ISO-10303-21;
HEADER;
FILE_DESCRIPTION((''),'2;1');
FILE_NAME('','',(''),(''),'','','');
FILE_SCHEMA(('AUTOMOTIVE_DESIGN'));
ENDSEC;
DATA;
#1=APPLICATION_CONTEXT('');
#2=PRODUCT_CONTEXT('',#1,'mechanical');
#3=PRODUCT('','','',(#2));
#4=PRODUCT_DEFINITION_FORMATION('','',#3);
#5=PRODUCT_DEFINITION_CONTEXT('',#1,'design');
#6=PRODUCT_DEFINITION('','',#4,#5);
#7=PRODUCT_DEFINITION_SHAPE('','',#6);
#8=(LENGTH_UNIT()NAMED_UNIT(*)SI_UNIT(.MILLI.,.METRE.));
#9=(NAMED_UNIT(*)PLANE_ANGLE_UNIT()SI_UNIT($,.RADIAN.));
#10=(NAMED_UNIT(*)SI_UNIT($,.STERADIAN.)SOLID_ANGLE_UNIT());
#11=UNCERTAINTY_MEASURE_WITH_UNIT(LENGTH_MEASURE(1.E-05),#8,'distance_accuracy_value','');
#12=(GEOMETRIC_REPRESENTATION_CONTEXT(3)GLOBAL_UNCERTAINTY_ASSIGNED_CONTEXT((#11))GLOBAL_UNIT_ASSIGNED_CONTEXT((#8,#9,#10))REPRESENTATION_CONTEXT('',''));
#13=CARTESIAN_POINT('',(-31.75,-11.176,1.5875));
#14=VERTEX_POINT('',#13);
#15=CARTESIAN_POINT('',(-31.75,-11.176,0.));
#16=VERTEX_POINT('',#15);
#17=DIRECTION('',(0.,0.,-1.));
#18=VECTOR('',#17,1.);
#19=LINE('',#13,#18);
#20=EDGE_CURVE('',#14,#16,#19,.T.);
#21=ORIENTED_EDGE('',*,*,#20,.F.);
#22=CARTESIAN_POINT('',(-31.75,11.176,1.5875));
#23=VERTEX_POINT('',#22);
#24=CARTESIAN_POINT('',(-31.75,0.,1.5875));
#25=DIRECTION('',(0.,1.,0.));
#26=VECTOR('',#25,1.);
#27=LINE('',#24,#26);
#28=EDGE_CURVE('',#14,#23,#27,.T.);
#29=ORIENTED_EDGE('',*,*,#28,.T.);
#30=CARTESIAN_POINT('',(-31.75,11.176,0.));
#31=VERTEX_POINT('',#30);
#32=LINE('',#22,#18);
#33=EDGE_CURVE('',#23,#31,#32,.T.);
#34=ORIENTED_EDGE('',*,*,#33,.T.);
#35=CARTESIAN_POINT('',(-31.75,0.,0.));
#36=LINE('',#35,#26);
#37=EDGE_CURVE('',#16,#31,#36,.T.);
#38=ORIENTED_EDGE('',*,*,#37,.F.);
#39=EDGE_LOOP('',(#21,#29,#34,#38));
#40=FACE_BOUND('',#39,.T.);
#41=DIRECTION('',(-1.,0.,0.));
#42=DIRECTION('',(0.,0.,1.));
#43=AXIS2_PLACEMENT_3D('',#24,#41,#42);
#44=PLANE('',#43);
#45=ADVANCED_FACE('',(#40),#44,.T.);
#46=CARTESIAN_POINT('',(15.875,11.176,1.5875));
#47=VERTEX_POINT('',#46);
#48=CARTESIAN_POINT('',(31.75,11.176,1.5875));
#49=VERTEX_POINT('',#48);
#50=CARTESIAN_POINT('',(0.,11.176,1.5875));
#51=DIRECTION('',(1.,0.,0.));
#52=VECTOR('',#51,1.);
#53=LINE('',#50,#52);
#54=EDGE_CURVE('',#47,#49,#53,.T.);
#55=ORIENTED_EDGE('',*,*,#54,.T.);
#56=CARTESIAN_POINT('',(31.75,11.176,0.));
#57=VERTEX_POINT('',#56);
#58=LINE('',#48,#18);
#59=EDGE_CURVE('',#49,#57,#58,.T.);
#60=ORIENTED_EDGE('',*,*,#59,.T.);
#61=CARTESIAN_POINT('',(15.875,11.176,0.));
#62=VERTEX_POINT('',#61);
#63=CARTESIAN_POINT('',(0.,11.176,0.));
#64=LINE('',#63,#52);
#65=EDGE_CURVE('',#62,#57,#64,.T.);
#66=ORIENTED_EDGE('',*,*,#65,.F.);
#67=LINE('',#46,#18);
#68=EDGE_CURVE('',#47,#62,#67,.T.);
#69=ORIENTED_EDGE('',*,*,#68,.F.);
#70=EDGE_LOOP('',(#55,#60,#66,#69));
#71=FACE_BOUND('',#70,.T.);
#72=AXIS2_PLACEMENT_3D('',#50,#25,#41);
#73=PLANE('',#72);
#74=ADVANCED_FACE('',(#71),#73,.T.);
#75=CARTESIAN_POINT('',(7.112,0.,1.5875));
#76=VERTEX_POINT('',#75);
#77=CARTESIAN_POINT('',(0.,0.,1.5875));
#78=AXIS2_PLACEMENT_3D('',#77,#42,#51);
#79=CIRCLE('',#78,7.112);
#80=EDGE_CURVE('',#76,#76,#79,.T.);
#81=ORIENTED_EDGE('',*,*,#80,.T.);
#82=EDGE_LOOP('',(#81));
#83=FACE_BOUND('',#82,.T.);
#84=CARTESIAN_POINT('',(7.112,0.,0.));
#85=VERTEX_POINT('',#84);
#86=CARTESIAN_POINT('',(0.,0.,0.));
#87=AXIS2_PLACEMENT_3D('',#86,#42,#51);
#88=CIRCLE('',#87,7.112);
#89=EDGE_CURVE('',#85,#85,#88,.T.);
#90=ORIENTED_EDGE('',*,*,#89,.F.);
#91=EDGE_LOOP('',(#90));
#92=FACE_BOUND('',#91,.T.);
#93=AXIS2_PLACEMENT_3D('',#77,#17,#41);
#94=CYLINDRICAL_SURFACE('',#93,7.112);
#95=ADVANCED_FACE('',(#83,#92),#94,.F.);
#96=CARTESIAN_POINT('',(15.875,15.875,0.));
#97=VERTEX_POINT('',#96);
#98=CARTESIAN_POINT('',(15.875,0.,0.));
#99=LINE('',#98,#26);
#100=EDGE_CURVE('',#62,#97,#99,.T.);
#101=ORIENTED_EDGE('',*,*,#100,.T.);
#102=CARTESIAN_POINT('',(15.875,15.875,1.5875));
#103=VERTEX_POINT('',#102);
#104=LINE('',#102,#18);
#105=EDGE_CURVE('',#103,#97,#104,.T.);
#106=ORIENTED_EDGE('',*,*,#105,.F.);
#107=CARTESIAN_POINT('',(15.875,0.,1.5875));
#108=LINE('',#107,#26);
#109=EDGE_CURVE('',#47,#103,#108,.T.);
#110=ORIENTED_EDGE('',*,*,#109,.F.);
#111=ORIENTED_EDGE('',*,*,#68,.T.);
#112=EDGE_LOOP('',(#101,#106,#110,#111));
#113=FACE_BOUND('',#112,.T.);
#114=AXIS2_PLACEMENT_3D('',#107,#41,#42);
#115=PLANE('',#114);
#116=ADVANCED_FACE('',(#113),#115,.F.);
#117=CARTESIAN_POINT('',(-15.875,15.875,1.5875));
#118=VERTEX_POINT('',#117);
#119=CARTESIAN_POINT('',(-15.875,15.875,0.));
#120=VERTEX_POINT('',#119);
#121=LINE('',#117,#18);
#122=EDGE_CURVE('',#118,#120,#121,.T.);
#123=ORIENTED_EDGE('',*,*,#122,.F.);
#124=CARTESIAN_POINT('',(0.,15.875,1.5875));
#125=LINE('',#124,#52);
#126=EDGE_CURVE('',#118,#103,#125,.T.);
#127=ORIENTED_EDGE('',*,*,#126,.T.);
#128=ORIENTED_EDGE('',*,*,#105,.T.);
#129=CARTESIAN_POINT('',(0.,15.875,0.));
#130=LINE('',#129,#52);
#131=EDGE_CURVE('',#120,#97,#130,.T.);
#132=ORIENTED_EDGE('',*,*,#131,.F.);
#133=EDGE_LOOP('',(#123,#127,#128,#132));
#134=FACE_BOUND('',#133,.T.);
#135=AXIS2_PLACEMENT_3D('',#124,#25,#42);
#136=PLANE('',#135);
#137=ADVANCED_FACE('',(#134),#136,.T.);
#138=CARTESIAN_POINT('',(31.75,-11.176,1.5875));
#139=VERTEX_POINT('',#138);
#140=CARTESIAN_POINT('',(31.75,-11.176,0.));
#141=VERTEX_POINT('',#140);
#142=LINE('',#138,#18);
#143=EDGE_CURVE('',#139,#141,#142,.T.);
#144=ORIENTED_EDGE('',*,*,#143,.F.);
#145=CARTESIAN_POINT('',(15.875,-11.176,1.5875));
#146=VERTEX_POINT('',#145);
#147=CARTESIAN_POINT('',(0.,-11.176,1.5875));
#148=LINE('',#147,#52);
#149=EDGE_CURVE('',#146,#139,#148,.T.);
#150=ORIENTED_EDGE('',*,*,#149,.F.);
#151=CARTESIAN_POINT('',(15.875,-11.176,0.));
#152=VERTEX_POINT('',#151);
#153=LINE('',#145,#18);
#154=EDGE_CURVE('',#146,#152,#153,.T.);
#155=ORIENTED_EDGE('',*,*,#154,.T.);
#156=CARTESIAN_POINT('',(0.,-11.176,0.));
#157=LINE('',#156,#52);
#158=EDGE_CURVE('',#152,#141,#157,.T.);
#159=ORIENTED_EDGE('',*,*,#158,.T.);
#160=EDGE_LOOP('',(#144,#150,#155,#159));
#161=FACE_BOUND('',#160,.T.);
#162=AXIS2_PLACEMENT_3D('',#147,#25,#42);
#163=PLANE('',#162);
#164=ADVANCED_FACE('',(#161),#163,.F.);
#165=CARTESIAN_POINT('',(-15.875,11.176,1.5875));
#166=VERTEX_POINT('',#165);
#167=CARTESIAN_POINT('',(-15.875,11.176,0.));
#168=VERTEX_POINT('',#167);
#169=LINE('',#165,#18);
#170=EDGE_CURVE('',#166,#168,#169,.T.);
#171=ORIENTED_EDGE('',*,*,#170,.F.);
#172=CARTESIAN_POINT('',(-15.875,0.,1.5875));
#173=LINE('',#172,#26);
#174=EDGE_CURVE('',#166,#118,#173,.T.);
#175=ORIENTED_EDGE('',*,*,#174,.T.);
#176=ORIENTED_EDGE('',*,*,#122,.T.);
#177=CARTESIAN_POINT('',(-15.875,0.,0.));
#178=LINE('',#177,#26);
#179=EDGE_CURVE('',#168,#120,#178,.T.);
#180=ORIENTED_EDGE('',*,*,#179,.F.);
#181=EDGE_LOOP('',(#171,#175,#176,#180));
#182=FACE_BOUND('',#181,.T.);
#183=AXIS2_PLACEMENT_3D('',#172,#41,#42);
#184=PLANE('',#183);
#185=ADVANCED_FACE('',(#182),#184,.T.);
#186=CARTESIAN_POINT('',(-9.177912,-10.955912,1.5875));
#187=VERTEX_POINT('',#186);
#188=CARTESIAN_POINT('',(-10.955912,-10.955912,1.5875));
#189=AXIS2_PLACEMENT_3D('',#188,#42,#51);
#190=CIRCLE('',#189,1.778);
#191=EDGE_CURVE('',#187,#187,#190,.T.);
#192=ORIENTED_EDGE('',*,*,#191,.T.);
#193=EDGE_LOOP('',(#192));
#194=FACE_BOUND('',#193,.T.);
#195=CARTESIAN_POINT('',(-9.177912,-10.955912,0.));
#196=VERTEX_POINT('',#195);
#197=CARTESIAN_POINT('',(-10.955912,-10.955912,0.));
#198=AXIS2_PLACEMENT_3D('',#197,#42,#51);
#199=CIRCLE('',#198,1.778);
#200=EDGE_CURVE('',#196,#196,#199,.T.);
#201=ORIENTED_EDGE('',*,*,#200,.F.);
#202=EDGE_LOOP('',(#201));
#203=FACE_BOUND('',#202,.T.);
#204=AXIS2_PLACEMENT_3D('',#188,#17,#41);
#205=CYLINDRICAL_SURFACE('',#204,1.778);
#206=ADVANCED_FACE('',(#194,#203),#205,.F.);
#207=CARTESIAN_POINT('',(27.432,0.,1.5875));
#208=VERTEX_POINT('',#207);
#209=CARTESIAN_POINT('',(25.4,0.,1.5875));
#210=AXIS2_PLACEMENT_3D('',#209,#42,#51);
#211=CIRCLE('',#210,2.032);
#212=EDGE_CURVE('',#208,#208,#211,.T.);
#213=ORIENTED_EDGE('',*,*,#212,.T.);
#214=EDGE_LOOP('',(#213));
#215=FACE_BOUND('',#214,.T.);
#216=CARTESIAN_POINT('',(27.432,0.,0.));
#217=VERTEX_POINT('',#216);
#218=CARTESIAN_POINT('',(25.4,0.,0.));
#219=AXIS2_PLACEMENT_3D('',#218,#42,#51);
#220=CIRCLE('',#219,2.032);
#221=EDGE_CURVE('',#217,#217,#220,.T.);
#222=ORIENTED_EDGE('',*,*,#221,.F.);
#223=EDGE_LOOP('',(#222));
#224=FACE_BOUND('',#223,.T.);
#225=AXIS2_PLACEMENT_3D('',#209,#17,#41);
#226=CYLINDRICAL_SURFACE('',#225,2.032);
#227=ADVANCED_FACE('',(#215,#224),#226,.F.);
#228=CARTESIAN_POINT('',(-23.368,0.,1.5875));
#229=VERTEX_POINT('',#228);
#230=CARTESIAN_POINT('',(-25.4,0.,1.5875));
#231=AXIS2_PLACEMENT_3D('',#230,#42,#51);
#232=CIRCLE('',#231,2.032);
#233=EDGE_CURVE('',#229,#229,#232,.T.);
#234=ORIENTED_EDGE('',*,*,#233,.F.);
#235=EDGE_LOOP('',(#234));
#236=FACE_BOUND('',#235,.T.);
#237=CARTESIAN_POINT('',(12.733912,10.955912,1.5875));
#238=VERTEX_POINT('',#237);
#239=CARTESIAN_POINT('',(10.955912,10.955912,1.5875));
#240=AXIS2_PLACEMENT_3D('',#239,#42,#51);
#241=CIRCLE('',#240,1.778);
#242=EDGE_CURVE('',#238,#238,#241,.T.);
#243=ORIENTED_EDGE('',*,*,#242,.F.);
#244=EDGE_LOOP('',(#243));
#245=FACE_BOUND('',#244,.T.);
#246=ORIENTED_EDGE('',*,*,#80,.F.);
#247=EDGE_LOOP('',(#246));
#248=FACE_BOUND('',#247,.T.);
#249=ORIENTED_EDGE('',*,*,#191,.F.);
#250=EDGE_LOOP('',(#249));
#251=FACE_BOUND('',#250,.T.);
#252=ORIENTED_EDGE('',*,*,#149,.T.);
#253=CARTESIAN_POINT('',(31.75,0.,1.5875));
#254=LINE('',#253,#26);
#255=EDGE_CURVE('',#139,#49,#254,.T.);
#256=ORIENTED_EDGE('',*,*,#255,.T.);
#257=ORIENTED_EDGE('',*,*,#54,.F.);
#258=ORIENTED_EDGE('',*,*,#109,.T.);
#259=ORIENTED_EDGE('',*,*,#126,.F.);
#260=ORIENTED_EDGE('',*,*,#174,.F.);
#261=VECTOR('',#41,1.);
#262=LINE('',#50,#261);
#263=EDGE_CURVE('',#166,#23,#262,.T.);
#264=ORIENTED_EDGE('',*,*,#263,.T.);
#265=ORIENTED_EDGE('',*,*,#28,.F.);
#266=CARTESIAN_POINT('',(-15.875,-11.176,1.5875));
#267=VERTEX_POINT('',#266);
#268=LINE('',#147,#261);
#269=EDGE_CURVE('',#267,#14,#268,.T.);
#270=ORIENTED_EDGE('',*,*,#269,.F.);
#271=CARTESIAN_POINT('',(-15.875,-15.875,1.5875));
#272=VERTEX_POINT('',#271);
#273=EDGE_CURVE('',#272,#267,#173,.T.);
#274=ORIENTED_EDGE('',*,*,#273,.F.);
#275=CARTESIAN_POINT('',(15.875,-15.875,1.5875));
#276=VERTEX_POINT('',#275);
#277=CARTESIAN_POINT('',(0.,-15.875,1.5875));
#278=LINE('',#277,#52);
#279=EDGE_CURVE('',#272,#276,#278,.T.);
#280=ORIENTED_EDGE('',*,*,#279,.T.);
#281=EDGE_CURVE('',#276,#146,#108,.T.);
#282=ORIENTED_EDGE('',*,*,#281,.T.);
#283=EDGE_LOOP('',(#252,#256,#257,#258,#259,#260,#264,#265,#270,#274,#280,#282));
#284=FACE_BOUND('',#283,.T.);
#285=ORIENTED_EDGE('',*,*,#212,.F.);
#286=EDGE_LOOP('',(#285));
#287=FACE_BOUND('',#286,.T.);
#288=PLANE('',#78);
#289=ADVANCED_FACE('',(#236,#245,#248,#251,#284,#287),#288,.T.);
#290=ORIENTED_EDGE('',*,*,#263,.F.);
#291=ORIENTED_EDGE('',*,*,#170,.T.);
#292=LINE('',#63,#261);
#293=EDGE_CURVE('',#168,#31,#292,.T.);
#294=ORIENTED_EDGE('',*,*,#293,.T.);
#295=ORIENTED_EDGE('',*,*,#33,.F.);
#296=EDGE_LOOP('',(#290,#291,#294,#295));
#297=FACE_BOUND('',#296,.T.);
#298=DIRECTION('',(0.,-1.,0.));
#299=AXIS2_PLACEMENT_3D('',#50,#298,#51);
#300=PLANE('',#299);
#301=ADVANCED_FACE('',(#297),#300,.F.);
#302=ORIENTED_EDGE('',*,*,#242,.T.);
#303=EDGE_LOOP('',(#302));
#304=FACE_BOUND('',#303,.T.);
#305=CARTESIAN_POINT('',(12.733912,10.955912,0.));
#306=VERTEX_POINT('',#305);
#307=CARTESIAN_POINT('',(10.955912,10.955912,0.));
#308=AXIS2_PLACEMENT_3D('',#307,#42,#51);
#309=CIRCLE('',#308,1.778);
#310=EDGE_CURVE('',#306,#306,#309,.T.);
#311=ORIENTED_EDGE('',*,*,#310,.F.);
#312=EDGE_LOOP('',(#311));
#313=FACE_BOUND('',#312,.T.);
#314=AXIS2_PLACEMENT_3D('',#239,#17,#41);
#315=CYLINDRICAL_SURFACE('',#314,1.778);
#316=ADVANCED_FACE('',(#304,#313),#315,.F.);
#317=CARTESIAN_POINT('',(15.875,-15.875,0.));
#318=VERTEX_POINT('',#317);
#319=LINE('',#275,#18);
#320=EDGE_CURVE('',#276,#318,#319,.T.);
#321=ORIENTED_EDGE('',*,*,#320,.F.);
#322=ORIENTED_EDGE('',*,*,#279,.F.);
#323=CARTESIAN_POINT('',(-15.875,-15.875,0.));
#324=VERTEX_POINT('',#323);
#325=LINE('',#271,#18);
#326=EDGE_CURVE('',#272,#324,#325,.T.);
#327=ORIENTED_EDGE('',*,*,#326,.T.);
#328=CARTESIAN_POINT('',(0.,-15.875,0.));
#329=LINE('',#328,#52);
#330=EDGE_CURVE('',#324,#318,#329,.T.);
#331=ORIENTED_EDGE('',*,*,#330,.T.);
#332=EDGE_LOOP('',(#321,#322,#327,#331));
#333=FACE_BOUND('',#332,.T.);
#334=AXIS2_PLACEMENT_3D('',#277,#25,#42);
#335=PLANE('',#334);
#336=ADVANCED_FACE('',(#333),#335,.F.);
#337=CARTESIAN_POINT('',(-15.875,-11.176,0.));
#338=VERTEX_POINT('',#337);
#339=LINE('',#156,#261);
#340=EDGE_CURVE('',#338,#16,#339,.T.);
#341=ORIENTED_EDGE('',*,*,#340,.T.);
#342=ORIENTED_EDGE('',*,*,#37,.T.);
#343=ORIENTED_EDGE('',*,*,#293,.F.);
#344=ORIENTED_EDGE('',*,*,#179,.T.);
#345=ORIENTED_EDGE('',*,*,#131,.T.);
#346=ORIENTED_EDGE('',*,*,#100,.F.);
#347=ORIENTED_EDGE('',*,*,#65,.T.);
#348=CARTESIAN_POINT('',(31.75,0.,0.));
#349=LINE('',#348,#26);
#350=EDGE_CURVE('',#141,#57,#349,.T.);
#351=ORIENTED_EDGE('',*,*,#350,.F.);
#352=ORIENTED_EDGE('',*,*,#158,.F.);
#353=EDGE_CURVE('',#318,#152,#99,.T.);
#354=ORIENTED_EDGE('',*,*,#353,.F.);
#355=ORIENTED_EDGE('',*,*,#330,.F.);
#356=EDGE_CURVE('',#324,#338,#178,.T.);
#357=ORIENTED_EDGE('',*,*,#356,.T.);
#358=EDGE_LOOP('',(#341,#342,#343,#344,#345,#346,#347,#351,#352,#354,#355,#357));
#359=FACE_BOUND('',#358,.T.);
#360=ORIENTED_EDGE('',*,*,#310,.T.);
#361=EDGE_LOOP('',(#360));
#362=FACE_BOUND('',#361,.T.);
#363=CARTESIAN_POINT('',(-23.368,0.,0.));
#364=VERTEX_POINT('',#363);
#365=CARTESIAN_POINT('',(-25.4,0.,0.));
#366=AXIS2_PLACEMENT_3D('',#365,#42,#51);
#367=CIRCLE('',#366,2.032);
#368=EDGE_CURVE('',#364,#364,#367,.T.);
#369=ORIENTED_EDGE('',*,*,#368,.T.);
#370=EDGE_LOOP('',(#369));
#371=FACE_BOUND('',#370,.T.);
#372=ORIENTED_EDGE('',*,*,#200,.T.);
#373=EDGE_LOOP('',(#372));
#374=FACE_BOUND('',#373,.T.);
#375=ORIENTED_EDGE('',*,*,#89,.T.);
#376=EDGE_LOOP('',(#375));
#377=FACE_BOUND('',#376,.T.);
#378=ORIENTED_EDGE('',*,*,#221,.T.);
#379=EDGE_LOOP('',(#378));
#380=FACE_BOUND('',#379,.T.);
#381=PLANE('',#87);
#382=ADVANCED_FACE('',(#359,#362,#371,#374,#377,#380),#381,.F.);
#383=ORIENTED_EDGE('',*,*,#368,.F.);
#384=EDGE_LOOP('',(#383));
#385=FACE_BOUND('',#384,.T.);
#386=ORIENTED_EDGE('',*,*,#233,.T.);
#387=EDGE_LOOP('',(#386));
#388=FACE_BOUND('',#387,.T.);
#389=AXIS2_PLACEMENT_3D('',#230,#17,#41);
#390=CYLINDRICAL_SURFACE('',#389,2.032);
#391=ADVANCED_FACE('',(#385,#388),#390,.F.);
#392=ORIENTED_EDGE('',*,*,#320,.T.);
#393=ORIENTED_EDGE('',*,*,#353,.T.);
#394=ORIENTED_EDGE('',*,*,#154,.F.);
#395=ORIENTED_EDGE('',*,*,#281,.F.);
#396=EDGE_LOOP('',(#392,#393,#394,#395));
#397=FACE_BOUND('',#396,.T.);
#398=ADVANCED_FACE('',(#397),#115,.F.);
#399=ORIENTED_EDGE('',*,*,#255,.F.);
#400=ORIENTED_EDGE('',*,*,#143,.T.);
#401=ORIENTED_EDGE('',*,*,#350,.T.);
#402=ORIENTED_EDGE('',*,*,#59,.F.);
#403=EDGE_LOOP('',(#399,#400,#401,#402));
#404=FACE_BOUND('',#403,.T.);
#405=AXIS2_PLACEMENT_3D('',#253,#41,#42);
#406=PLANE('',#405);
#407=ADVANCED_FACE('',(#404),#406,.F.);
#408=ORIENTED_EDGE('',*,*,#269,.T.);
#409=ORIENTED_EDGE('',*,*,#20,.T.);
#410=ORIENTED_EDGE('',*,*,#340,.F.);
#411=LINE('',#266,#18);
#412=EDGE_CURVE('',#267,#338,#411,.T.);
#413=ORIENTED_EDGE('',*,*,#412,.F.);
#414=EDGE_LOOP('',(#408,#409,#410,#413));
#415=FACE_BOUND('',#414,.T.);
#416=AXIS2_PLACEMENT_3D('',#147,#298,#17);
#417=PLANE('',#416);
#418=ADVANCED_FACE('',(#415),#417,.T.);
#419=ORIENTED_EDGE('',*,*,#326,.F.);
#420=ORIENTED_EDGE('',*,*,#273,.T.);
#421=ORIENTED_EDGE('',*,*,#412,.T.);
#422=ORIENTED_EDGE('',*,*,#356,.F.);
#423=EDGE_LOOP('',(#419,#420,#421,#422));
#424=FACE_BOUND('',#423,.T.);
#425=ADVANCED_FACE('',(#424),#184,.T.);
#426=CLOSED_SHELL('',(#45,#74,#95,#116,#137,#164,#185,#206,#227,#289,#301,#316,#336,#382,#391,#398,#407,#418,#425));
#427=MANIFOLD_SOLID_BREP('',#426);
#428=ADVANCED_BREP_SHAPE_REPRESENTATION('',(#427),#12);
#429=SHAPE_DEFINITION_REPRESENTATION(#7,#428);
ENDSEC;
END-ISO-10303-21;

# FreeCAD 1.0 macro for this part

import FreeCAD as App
import Part
import Sketcher
Q = App.Units.Quantity


def add_polygon(sketch, points):
    """Adds a closed chain of lines whose ends are joined by coincident constraints."""
    first, n = sketch.GeometryCount, len(points)
    for a, b in zip(points, points[1:] + points[:1]):
        sketch.addGeometry(Part.LineSegment(App.Vector(*a, 0), App.Vector(*b, 0)), False)
    for i in range(n):
        sketch.addConstraint(Sketcher.Constraint("Coincident", first + i, 2, first + (i + 1) % n, 1))

doc = App.newDocument("Part")
body = doc.addObject("PartDesign::Body", "Body")

sketch1 = doc.addObject("Sketcher::SketchObject", "Sketch")
body.addObject(sketch1)
sketch1.AttachmentSupport = (doc.XY_Plane, [""])
sketch1.MapMode = "FlatFace"
add_polygon(sketch1, [(-31.75, 11.176), (-31.75, -11.176), (-15.875, -11.176), (-15.875, -15.875), (15.875, -15.875), (15.875, -11.176), (31.75, -11.176), (31.75, 11.176), (15.875, 11.176), (15.875, 15.875), (-15.875, 15.875), (-15.875, 11.176)])
sketch1.addGeometry(Part.Circle(App.Vector(-10.955912, -10.955912, 0), App.Vector(0, 0, 1), 1.778), False)
sketch1.addGeometry(Part.Circle(App.Vector(-25.4, 0, 0), App.Vector(0, 0, 1), 2.032), False)
sketch1.addGeometry(Part.Circle(App.Vector(0, 0, 0), App.Vector(0, 0, 1), 7.112), False)
sketch1.addGeometry(Part.Circle(App.Vector(25.4, 0, 0), App.Vector(0, 0, 1), 2.032), False)
sketch1.addGeometry(Part.Circle(App.Vector(10.955912, 10.955912, 0), App.Vector(0, 0, 1), 1.778), False)
sketch1.addConstraint([
    Sketcher.Constraint("Vertical", 0),
    Sketcher.Constraint("Horizontal", 1),
    Sketcher.Constraint("Vertical", 2),
    Sketcher.Constraint("Horizontal", 3),
    Sketcher.Constraint("Vertical", 4),
    Sketcher.Constraint("Horizontal", 5),
    Sketcher.Constraint("Vertical", 6),
    Sketcher.Constraint("Horizontal", 7),
    Sketcher.Constraint("Vertical", 8),
    Sketcher.Constraint("Horizontal", 9),
    Sketcher.Constraint("Vertical", 10),
    Sketcher.Constraint("Horizontal", 11),
    Sketcher.Constraint("Coincident", 14, 3, -1, 1),
    Sketcher.Constraint("Equal", 13, 15),
    Sketcher.Constraint("Equal", 12, 16),
    Sketcher.Constraint("Symmetric", 13, 3, 15, 3, -1, 1),
    Sketcher.Constraint("Symmetric", 12, 3, 16, 3, -1, 1),
    Sketcher.Constraint("Symmetric", 0, 2, 6, 2, -1, 1),
    Sketcher.Constraint("Symmetric", 2, 2, 8, 2, -1, 1),
    Sketcher.Constraint("Symmetric", 4, 2, 10, 2, -1, 1),
    Sketcher.Constraint("Symmetric", 1, 2, 4, 2, -2),
    Sketcher.Constraint("PointOnObject", 13, 3, -1),
    Sketcher.Constraint("Diameter", 12, Q("0.14 in")),
    Sketcher.Constraint("Diameter", 13, Q("0.16 in")),
    Sketcher.Constraint("Diameter", 14, Q("0.56 in")),
    Sketcher.Constraint("DistanceX", 13, 3, -1, 1, Q("1 in")),
    Sketcher.Constraint("DistanceX", 3, 1, 3, 2, Q("1.25 in")),
    Sketcher.Constraint("DistanceY", 0, 2, 0, 1, Q("0.88 in")),
    Sketcher.Constraint("DistanceX", 1, 1, 1, 2, Q("0.625 in")),
    Sketcher.Constraint("DistanceY", 2, 2, 2, 1, Q("0.185 in")),
    Sketcher.Constraint("DistanceX", 12, 3, -1, 1, 10.955912),
    Sketcher.Constraint("DistanceY", 12, 3, -1, 1, 10.955912),
])
pad1 = doc.addObject("PartDesign::Pad", "Pad")
body.addObject(pad1)
pad1.Profile = sketch1
pad1.Length = Q("0.0625 in")

doc.recompute()
